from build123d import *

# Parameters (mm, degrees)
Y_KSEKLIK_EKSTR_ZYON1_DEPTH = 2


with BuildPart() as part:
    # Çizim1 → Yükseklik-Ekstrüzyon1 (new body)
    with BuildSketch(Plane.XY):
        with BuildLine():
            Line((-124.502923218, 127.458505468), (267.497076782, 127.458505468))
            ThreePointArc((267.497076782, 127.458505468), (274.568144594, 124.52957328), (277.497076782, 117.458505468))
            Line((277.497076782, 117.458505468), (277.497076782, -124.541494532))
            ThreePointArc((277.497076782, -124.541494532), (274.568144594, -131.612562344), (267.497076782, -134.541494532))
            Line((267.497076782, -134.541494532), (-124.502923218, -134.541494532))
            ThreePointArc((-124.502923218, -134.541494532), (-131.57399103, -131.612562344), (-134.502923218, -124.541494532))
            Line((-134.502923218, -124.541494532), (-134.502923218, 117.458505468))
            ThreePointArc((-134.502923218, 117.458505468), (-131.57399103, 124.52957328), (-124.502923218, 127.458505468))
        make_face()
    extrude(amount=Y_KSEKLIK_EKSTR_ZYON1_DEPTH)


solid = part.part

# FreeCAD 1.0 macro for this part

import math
import FreeCAD as App
import Part
import Sketcher

V = App.Vector
Q = App.Units.Quantity

doc = App.newDocument("Part")
body = doc.addObject("PartDesign::Body", "Body")

# Sketch on XY plane
sketch1 = body.newObject("Sketcher::SketchObject", "Sketch")
sketch1.AttachmentSupport = (doc.getObject("XY_Plane"), [""])
sketch1.MapMode = "FlatFace"
sketch1.addGeometry(Part.LineSegment(V(267.497077, 127.458505, 0), V(-124.502923, 127.458505, 0)), False)
sketch1.addGeometry(Part.ArcOfCircle(Part.Circle(V(-124.502923, 117.458505, 0), V(0, 0, 1), 10), math.radians(90), math.radians(180)), False)
sketch1.addGeometry(Part.LineSegment(V(-134.502923, 117.458505, 0), V(-134.502923, -124.541495, 0)), False)
sketch1.addGeometry(Part.ArcOfCircle(Part.Circle(V(-124.502923, -124.541495, 0), V(0, 0, 1), 10), math.radians(180), math.radians(270)), False)
sketch1.addGeometry(Part.LineSegment(V(-124.502923, -134.541495, 0), V(267.497077, -134.541495, 0)), False)
sketch1.addGeometry(Part.ArcOfCircle(Part.Circle(V(267.497077, -124.541495, 0), V(0, 0, 1), 10), math.radians(-90), math.radians(0)), False)
sketch1.addGeometry(Part.LineSegment(V(277.497077, -124.541495, 0), V(277.497077, 117.458505, 0)), False)
sketch1.addGeometry(Part.ArcOfCircle(Part.Circle(V(267.497077, 117.458505, 0), V(0, 0, 1), 10), math.radians(0), math.radians(90)), False)
sketch1.addConstraint(Sketcher.Constraint("Tangent", 0, 2, 1, 1))
sketch1.addConstraint(Sketcher.Constraint("Tangent", 1, 2, 2, 1))
sketch1.addConstraint(Sketcher.Constraint("Tangent", 2, 2, 3, 1))
sketch1.addConstraint(Sketcher.Constraint("Tangent", 3, 2, 4, 1))
sketch1.addConstraint(Sketcher.Constraint("Tangent", 4, 2, 5, 1))
sketch1.addConstraint(Sketcher.Constraint("Tangent", 5, 2, 6, 1))
sketch1.addConstraint(Sketcher.Constraint("Tangent", 6, 2, 7, 1))
sketch1.addConstraint(Sketcher.Constraint("Tangent", 7, 2, 0, 1))
sketch1.addConstraint(Sketcher.Constraint("Horizontal", 0))
sketch1.addConstraint(Sketcher.Constraint("Vertical", 2))
sketch1.addConstraint(Sketcher.Constraint("Horizontal", 4))
sketch1.addConstraint(Sketcher.Constraint("Vertical", 6))
sketch1.addConstraint(Sketcher.Constraint("Equal", 1, 3))
sketch1.addConstraint(Sketcher.Constraint("Equal", 3, 5))
sketch1.addConstraint(Sketcher.Constraint("Equal", 5, 7))
sketch1.addConstraint(Sketcher.Constraint("Radius", 1, Q("10 mm")))
sketch1.addConstraint(Sketcher.Constraint("DistanceX", 0, 2, 0, 1, Q("392 mm")))
sketch1.addConstraint(Sketcher.Constraint("DistanceY", 2, 2, 2, 1, Q("242 mm")))
sketch1.addConstraint(Sketcher.Constraint("DistanceX", 1, 3, -1, 1, Q("124.502923 mm")))
sketch1.addConstraint(Sketcher.Constraint("DistanceY", -1, 1, 1, 3, Q("117.458505 mm")))
pad1 = body.newObject("PartDesign::Pad", "Pad")
pad1.Profile = sketch1
pad1.Length = 2

doc.recompute()
